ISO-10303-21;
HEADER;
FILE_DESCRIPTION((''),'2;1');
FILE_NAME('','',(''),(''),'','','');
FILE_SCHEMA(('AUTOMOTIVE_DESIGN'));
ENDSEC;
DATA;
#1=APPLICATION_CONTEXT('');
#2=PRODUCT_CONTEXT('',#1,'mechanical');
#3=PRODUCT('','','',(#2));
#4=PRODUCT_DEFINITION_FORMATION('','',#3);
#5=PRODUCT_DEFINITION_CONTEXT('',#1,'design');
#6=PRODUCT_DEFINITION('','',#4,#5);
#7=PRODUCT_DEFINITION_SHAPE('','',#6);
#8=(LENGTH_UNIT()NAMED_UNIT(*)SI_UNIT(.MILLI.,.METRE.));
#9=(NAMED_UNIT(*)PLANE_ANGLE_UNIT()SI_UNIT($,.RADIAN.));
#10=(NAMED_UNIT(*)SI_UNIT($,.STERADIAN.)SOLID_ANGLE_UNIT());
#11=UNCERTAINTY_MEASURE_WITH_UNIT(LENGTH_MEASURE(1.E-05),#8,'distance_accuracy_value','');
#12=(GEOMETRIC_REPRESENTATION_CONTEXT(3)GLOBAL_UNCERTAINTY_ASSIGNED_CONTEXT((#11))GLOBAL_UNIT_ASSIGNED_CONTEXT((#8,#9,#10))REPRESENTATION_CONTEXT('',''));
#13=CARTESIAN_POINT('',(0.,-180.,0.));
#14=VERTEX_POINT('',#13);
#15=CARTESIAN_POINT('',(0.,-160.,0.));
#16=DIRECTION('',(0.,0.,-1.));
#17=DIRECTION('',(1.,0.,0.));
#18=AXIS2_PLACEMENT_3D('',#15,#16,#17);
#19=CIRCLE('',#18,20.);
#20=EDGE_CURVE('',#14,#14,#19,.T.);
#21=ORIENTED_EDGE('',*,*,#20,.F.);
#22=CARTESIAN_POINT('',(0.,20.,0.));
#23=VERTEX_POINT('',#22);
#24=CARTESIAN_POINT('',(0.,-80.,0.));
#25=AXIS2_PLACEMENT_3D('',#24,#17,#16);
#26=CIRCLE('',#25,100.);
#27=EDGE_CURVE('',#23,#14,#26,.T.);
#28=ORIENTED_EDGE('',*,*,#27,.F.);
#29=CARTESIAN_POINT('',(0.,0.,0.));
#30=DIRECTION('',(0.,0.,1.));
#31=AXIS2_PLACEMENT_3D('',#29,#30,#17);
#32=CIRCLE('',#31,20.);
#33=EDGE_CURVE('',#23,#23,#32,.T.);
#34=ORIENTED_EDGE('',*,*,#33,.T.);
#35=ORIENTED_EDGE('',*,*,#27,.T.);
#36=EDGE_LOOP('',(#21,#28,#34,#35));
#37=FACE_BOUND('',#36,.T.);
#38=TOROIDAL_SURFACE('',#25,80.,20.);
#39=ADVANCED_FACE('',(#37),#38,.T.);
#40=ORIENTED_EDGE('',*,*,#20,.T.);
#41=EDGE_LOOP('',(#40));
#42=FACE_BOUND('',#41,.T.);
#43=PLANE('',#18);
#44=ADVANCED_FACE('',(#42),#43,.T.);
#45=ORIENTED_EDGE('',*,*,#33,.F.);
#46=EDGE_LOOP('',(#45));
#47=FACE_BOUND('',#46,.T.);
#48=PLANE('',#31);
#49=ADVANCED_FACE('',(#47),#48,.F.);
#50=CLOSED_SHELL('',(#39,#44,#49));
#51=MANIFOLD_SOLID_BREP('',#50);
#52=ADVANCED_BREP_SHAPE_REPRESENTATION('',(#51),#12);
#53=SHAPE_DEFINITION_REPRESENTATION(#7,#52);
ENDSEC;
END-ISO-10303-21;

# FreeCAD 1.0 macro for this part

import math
import FreeCAD as App
import Part
import Sketcher
Q = App.Units.Quantity

doc = App.newDocument("Part")
params = doc.addObject("Spreadsheet::Sheet", "Params")
for row, (alias, value) in enumerate([
    ("sketch1_diameter", "40 mm"),
    ("sketch2_radius", "80 mm"),
], start=1):
    params.set(f"A{row}", alias)
    params.set(f"B{row}", "=" + value)
    params.setAlias(f"B{row}", alias)

body = doc.addObject("PartDesign::Body", "Body")

# Sketch on XY plane
sketch1 = body.newObject("Sketcher::SketchObject", "Sketch")
sketch1.AttachmentSupport = (doc.getObject("XY_Plane"), [""])
sketch1.MapMode = "FlatFace"
sketch1.addGeometry(Part.Circle(App.Vector(0, 0, 0), App.Vector(0, 0, 1), 20), False)
sketch1.addConstraint([
    Sketcher.Constraint("Coincident", 0, 3, -1, 1),
    Sketcher.Constraint("Diameter", 0, Q("40 mm")),
])
sketch1.setExpression("Constraints[1]", "Params.sketch1_diameter")

# Sketch on YZ plane
sketch2 = body.newObject("Sketcher::SketchObject", "Sketch001")
sketch2.AttachmentSupport = (doc.getObject("YZ_Plane"), [""])
sketch2.MapMode = "FlatFace"
sketch2.addGeometry(Part.ArcOfCircle(Part.Circle(App.Vector(-80, 0, 0), App.Vector(0, 0, 1), 80), math.radians(0), math.radians(180)), False)
sketch2.addConstraint([
    Sketcher.Constraint("Coincident", 0, 1, -1, 1),
    Sketcher.Constraint("PointOnObject", 0, 3, -1),
    Sketcher.Constraint("PointOnObject", 0, 2, -1),
    Sketcher.Constraint("Radius", 0, Q("80 mm")),
])
sketch2.setExpression("Constraints[3]", "Params.sketch2_radius")
doc.recompute()

additivepipe = body.newObject("PartDesign::AdditivePipe", "AdditivePipe")
additivepipe.Profile = sketch1
additivepipe.Spine = (sketch2, ["Edge1"])

doc.recompute()
